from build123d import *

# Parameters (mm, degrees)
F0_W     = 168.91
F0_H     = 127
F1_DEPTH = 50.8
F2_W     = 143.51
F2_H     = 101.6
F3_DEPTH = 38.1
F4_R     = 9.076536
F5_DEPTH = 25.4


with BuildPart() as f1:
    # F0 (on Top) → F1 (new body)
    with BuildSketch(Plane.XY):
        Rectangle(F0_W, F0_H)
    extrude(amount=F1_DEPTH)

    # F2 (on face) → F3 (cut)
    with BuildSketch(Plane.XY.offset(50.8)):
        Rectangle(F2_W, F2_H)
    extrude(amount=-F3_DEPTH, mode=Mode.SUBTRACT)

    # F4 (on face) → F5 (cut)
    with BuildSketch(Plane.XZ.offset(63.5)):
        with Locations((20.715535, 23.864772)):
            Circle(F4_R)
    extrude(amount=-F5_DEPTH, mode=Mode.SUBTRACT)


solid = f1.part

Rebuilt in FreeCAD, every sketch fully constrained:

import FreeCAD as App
import Part
import Sketcher

V = App.Vector
Q = App.Units.Quantity

doc = App.newDocument("Part")
body = doc.addObject("PartDesign::Body", "Body")

sketch1 = body.newObject("Sketcher::SketchObject", "Sketch")
sketch1.AttachmentSupport = (doc.getObject("XY_Plane"), [""])
sketch1.MapMode = "FlatFace"
sketch1.addGeometry(Part.LineSegment(V(-84.455, 63.5, 0), V(-84.455, -63.5, 0)), False)
sketch1.addGeometry(Part.LineSegment(V(-84.455, -63.5, 0), V(84.455, -63.5, 0)), False)
sketch1.addGeometry(Part.LineSegment(V(84.455, -63.5, 0), V(84.455, 63.5, 0)), False)
sketch1.addGeometry(Part.LineSegment(V(84.455, 63.5, 0), V(-84.455, 63.5, 0)), False)
sketch1.addConstraint(Sketcher.Constraint("Coincident", 0, 2, 1, 1))
sketch1.addConstraint(Sketcher.Constraint("Coincident", 1, 2, 2, 1))
sketch1.addConstraint(Sketcher.Constraint("Coincident", 2, 2, 3, 1))
sketch1.addConstraint(Sketcher.Constraint("Coincident", 3, 2, 0, 1))
sketch1.addConstraint(Sketcher.Constraint("Vertical", 0))
sketch1.addConstraint(Sketcher.Constraint("Horizontal", 1))
sketch1.addConstraint(Sketcher.Constraint("Vertical", 2))
sketch1.addConstraint(Sketcher.Constraint("Horizontal", 3))
sketch1.addConstraint(Sketcher.Constraint("Symmetric", 0, 2, 2, 2, -1, 1))
sketch1.addConstraint(Sketcher.Constraint("DistanceY", 0, 2, 0, 1, Q("5 in")))
sketch1.addConstraint(Sketcher.Constraint("DistanceX", 1, 1, 1, 2, Q("6.65 in")))
pad1 = body.newObject("PartDesign::Pad", "Pad")
pad1.Profile = sketch1
pad1.Length = Q("2 in")

sketch2 = body.newObject("Sketcher::SketchObject", "Sketch001")
sketch2.AttachmentSupport = (doc.getObject("XY_Plane"), [""])
sketch2.MapMode = "FlatFace"
sketch2.AttachmentOffset = App.Placement(V(0, 0, 2 * 25.4), App.Rotation())
sketch2.addGeometry(Part.LineSegment(V(-71.755, 50.8, 0), V(-71.755, -50.8, 0)), False)
sketch2.addGeometry(Part.LineSegment(V(-71.755, -50.8, 0), V(71.755, -50.8, 0)), False)
sketch2.addGeometry(Part.LineSegment(V(71.755, -50.8, 0), V(71.755, 50.8, 0)), False)
sketch2.addGeometry(Part.LineSegment(V(71.755, 50.8, 0), V(-71.755, 50.8, 0)), False)
sketch2.addConstraint(Sketcher.Constraint("Coincident", 0, 2, 1, 1))
sketch2.addConstraint(Sketcher.Constraint("Coincident", 1, 2, 2, 1))
sketch2.addConstraint(Sketcher.Constraint("Coincident", 2, 2, 3, 1))
sketch2.addConstraint(Sketcher.Constraint("Coincident", 3, 2, 0, 1))
sketch2.addConstraint(Sketcher.Constraint("Vertical", 0))
sketch2.addConstraint(Sketcher.Constraint("Horizontal", 1))
sketch2.addConstraint(Sketcher.Constraint("Vertical", 2))
sketch2.addConstraint(Sketcher.Constraint("Horizontal", 3))
sketch2.addConstraint(Sketcher.Constraint("Symmetric", 0, 2, 2, 2, -1, 1))
sketch2.addConstraint(Sketcher.Constraint("DistanceY", 0, 2, 0, 1, Q("4 in")))
sketch2.addConstraint(Sketcher.Constraint("DistanceX", 1, 1, 1, 2, Q("5.65 in")))
pocket1 = body.newObject("PartDesign::Pocket", "Pocket")
pocket1.Profile = sketch2
pocket1.Length = Q("1.5 in")

sketch3 = body.newObject("Sketcher::SketchObject", "Sketch002")
sketch3.AttachmentSupport = (doc.getObject("XZ_Plane"), [""])
sketch3.MapMode = "FlatFace"
sketch3.AttachmentOffset = App.Placement(V(0, 0, 2.5 * 25.4), App.Rotation())
sketch3.addGeometry(Part.Circle(V(20.715535, 23.864772, 0), V(0, 0, 1), 9.076536), False)
sketch3.addConstraint(Sketcher.Constraint("Diameter", 0, 18.153072))
sketch3.addConstraint(Sketcher.Constraint("DistanceY", -1, 1, 0, 3, 23.864772))
sketch3.addConstraint(Sketcher.Constraint("DistanceX", -1, 1, 0, 3, 20.715535))
pocket2 = body.newObject("PartDesign::Pocket", "Pocket001")
pocket2.Profile = sketch3
pocket2.Length = Q("1 in")

doc.recompute()
